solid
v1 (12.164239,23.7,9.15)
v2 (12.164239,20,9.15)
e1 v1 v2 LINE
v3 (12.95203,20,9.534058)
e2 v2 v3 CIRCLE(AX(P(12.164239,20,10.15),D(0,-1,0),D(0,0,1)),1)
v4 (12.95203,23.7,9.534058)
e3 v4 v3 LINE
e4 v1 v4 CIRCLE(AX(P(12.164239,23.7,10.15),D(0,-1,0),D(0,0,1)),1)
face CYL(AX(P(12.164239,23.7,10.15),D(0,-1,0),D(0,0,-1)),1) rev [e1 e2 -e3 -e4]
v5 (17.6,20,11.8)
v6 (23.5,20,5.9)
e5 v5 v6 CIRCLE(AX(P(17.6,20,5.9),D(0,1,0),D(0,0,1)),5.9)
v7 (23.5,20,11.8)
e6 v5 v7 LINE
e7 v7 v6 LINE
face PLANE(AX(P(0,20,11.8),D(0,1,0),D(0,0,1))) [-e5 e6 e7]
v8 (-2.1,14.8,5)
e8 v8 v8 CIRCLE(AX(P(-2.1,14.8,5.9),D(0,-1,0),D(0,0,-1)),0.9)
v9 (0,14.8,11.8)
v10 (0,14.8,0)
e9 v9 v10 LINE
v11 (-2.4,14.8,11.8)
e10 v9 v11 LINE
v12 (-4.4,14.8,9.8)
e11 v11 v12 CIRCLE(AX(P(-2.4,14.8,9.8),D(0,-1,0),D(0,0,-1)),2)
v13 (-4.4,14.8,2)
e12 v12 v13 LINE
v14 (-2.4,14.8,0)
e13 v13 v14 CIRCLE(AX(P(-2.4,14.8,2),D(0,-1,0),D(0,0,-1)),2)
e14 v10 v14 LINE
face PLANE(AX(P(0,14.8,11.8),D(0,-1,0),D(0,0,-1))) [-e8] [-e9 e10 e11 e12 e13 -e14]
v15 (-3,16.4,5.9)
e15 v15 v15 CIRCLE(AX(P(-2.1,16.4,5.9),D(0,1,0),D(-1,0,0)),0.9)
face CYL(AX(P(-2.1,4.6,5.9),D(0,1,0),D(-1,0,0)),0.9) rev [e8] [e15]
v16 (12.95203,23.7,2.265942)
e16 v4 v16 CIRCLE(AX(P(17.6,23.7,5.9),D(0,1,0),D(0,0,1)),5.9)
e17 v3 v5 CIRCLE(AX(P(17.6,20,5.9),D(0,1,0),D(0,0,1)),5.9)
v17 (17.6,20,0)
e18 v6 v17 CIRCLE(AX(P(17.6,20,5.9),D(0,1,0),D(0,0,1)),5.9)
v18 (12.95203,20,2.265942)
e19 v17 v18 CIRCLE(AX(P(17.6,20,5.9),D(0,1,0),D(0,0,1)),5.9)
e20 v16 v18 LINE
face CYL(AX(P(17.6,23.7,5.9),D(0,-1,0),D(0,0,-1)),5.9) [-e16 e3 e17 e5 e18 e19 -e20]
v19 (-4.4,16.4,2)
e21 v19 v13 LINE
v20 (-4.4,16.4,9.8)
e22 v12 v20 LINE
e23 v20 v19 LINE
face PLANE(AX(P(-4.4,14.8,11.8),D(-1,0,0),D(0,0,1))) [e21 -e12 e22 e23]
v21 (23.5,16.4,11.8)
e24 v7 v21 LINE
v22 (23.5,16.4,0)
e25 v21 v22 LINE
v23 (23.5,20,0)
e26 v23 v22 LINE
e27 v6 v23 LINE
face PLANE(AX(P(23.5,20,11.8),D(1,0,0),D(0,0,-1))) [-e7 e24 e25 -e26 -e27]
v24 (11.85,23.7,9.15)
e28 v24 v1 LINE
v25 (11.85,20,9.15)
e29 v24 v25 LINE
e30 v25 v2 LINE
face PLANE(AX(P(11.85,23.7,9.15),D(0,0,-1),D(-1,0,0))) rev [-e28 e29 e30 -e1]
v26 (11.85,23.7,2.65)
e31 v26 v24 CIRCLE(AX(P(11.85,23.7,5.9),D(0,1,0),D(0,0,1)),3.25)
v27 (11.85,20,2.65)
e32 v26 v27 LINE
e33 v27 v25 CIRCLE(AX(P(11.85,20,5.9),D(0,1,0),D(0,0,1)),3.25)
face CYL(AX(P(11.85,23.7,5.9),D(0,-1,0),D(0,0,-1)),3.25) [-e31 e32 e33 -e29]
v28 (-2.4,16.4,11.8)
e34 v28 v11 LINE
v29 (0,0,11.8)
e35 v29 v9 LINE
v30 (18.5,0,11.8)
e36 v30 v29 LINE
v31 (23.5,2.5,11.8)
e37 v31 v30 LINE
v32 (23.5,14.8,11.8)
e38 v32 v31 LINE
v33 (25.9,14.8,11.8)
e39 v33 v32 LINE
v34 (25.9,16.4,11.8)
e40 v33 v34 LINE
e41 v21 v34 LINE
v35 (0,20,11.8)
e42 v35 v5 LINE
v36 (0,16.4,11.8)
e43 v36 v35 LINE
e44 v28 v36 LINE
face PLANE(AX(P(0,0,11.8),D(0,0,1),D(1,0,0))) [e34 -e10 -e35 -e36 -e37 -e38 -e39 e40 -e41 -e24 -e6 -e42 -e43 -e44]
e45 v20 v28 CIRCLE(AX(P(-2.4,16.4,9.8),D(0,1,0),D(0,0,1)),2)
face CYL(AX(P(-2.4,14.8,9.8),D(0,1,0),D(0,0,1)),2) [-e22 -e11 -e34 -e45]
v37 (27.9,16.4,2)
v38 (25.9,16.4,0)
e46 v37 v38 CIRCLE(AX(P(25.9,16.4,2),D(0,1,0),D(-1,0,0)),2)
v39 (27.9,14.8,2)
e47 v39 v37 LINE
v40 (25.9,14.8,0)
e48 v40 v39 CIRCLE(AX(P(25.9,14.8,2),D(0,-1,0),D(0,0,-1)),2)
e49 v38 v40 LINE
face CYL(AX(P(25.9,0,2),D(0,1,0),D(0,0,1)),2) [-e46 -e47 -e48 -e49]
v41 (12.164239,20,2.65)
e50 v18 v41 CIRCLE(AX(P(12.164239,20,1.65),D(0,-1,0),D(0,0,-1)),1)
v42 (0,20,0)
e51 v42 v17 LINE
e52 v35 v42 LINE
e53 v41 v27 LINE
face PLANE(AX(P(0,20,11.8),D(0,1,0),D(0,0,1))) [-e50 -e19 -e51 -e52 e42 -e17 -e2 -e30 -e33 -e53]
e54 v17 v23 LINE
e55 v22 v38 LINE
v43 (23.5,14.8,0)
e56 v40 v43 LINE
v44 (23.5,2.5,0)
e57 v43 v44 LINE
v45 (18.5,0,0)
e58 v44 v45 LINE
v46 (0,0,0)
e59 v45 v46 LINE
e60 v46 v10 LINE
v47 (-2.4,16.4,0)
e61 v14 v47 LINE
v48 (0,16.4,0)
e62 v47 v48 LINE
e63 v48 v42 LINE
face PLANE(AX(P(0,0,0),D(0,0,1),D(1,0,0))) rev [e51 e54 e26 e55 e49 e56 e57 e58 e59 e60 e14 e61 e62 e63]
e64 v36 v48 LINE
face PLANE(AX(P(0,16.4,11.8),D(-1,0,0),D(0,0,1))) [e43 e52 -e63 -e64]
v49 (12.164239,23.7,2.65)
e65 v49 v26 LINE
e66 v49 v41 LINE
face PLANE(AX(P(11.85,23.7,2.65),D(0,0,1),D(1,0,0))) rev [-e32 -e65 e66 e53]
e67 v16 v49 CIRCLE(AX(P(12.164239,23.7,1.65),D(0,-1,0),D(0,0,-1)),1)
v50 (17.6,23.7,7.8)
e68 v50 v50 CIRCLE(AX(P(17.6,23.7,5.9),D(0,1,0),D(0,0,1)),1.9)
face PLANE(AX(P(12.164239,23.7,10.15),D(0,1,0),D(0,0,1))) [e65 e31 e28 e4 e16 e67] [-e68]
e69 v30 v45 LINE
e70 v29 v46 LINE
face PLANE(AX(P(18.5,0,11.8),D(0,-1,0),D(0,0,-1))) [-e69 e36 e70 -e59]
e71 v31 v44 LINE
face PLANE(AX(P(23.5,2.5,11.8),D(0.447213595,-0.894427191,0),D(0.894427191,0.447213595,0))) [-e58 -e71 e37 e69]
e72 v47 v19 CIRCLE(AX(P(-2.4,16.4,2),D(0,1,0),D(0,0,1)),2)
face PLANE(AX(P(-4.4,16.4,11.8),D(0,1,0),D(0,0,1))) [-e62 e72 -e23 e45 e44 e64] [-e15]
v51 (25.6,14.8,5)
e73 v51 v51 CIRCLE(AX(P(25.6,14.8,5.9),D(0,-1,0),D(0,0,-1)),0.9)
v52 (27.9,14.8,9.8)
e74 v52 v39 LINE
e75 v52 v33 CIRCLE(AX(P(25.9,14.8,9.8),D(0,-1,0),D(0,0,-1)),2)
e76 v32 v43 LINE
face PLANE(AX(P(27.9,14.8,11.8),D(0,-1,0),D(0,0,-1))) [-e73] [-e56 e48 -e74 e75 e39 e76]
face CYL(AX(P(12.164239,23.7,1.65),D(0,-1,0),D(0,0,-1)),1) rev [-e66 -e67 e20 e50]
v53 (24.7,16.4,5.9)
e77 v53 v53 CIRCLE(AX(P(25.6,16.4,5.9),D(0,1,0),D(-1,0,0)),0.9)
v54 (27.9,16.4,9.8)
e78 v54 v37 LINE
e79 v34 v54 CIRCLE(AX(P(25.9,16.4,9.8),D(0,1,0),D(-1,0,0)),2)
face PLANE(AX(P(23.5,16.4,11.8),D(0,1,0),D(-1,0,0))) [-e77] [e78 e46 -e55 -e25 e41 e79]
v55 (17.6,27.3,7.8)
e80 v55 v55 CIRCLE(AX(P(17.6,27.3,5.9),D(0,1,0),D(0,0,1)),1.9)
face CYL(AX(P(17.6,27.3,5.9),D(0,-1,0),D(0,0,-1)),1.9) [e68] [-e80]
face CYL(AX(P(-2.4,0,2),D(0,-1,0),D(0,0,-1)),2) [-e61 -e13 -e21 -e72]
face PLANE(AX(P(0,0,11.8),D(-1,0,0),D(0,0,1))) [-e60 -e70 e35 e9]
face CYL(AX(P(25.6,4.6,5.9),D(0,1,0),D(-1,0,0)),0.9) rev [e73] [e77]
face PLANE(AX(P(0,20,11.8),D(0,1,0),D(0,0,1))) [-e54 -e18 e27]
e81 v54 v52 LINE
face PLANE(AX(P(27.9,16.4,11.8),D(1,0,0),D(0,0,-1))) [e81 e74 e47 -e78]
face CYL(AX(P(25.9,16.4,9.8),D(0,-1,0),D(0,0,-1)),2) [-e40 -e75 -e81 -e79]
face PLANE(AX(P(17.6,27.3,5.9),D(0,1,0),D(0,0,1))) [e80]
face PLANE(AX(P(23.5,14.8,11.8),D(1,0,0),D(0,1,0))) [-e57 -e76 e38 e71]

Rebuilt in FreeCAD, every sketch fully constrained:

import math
import FreeCAD as App
import Part
import Sketcher
from FreeCAD import Vector
Q = App.Units.Quantity


def edges_at(feature, points):
    """Names of the edges that pass closest to the given points."""
    edges = feature.Shape.Edges
    near = lambda p: min(range(len(edges)), key=lambda i: edges[i].distToShape(Part.Vertex(*p))[0])
    return sorted({f"Edge{near(p) + 1}" for p in points})

doc = App.newDocument("Part")
body = doc.addObject("PartDesign::Body", "Body")

sketch1 = doc.addObject("Sketcher::SketchObject", "Sketch")
body.addObject(sketch1)
sketch1.AttachmentSupport = (doc.XY_Plane, [""])
sketch1.MapMode = "FlatFace"
sketch1.addGeometry(Part.LineSegment(Vector(0, 14.8, 0), Vector(0, 0, 0)), False)
sketch1.addGeometry(Part.LineSegment(Vector(0, 0, 0), Vector(18.5, 0, 0)), False)
sketch1.addGeometry(Part.LineSegment(Vector(18.5, 0, 0), Vector(23.5, 2.5, 0)), False)
sketch1.addGeometry(Part.LineSegment(Vector(23.5, 2.5, 0), Vector(23.5, 14.8, 0)), False)
sketch1.addGeometry(Part.LineSegment(Vector(23.5, 14.8, 0), Vector(27.9, 14.8, 0)), False)
sketch1.addGeometry(Part.LineSegment(Vector(27.9, 14.8, 0), Vector(27.9, 16.4, 0)), False)
sketch1.addGeometry(Part.LineSegment(Vector(27.9, 16.4, 0), Vector(23.5, 16.4, 0)), False)
sketch1.addGeometry(Part.LineSegment(Vector(23.5, 16.4, 0), Vector(23.5, 20, 0)), False)
sketch1.addGeometry(Part.LineSegment(Vector(23.5, 20, 0), Vector(0, 20, 0)), False)
sketch1.addGeometry(Part.LineSegment(Vector(0, 20, 0), Vector(0, 16.4, 0)), False)
sketch1.addGeometry(Part.LineSegment(Vector(0, 16.4, 0), Vector(-4.4, 16.4, 0)), False)
sketch1.addGeometry(Part.LineSegment(Vector(-4.4, 16.4, 0), Vector(-4.4, 14.8, 0)), False)
sketch1.addGeometry(Part.LineSegment(Vector(-4.4, 14.8, 0), Vector(0, 14.8, 0)), False)
sketch1.addConstraint(Sketcher.Constraint("Coincident", 0, 2, 1, 1))
sketch1.addConstraint(Sketcher.Constraint("Coincident", 1, 2, 2, 1))
sketch1.addConstraint(Sketcher.Constraint("Coincident", 2, 2, 3, 1))
sketch1.addConstraint(Sketcher.Constraint("Coincident", 3, 2, 4, 1))
sketch1.addConstraint(Sketcher.Constraint("Coincident", 4, 2, 5, 1))
sketch1.addConstraint(Sketcher.Constraint("Coincident", 5, 2, 6, 1))
sketch1.addConstraint(Sketcher.Constraint("Coincident", 6, 2, 7, 1))
sketch1.addConstraint(Sketcher.Constraint("Coincident", 7, 2, 8, 1))
sketch1.addConstraint(Sketcher.Constraint("Coincident", 8, 2, 9, 1))
sketch1.addConstraint(Sketcher.Constraint("Coincident", 9, 2, 10, 1))
sketch1.addConstraint(Sketcher.Constraint("Coincident", 10, 2, 11, 1))
sketch1.addConstraint(Sketcher.Constraint("Coincident", 11, 2, 12, 1))
sketch1.addConstraint(Sketcher.Constraint("Coincident", 12, 2, 0, 1))
sketch1.addConstraint(Sketcher.Constraint("Vertical", 0))
sketch1.addConstraint(Sketcher.Constraint("Horizontal", 1))
sketch1.addConstraint(Sketcher.Constraint("Vertical", 3))
sketch1.addConstraint(Sketcher.Constraint("Horizontal", 4))
sketch1.addConstraint(Sketcher.Constraint("Vertical", 5))
sketch1.addConstraint(Sketcher.Constraint("Horizontal", 6))
sketch1.addConstraint(Sketcher.Constraint("Vertical", 7))
sketch1.addConstraint(Sketcher.Constraint("Horizontal", 8))
sketch1.addConstraint(Sketcher.Constraint("Vertical", 9))
sketch1.addConstraint(Sketcher.Constraint("Horizontal", 10))
sketch1.addConstraint(Sketcher.Constraint("Vertical", 11))
sketch1.addConstraint(Sketcher.Constraint("Horizontal", 12))
sketch1.addConstraint(Sketcher.Constraint("Coincident", 0, 2, -1, 1))
sketch1.addConstraint(Sketcher.Constraint("PointOnObject", 8, 2, -2))
sketch1.addConstraint(Sketcher.Constraint("Horizontal", 6, 2, 9, 2))
sketch1.addConstraint(Sketcher.Constraint("Horizontal", 4, 2, 11, 2))
sketch1.addConstraint(Sketcher.Constraint("Vertical", 3, 2, 6, 2))
sketch1.addConstraint(Sketcher.Constraint("Equal", 6, 10))
sketch1.addConstraint(Sketcher.Constraint("DistanceX", 1, 1, 1, 2, Q("18.5 mm")))
sketch1.addConstraint(Sketcher.Constraint("DistanceX", 4, 1, 4, 2, Q("4.4 mm")))
sketch1.addConstraint(Sketcher.Constraint("DistanceX", 8, 2, 8, 1, Q("23.5 mm")))
sketch1.addConstraint(Sketcher.Constraint("DistanceY", 0, 2, 0, 1, Q("14.8 mm")))
sketch1.addConstraint(Sketcher.Constraint("DistanceY", 3, 1, 3, 2, Q("12.3 mm")))
sketch1.addConstraint(Sketcher.Constraint("DistanceY", 5, 1, 5, 2, Q("1.6 mm")))
sketch1.addConstraint(Sketcher.Constraint("DistanceY", 7, 1, 7, 2, Q("3.6 mm")))
pad1 = doc.addObject("PartDesign::Pad", "Pad")
body.addObject(pad1)
pad1.Profile = sketch1
pad1.Length = 11.8

sketch2 = doc.addObject("Sketcher::SketchObject", "Sketch001")
body.addObject(sketch2)
sketch2.AttachmentSupport = (doc.XZ_Plane, [""])
sketch2.MapMode = "FlatFace"
sketch2.AttachmentOffset = App.Placement(Vector(0, 0, -16.4), App.Rotation())
sketch2.addGeometry(Part.Circle(Vector(-2.1, 5.9, 0), Vector(0, 0, 1), 0.9), False)
sketch2.addGeometry(Part.Circle(Vector(25.6, 5.9, 0), Vector(0, 0, 1), 0.9), False)
sketch2.addConstraint(Sketcher.Constraint("Equal", 0, 1))
sketch2.addConstraint(Sketcher.Constraint("Horizontal", 0, 3, 1, 3))
sketch2.addConstraint(Sketcher.Constraint("Diameter", 0, Q("1.8 mm")))
sketch2.addConstraint(Sketcher.Constraint("DistanceX", 0, 3, -1, 1, Q("2.1 mm")))
sketch2.addConstraint(Sketcher.Constraint("DistanceY", -1, 1, 0, 3, Q("5.9 mm")))
sketch2.addConstraint(Sketcher.Constraint("DistanceX", -1, 1, 1, 3, Q("25.6 mm")))
pocket1 = doc.addObject("PartDesign::Pocket", "Pocket")
body.addObject(pocket1)
pocket1.Profile = sketch2
pocket1.Length = 11.8
pocket1.Reversed = True
doc.recompute()

fillet = doc.addObject("PartDesign::Fillet", "Fillet")
body.addObject(fillet)
fillet.Base = (pocket1, edges_at(pocket1, [
    (-4.4, 15.6, 0),
    (27.9, 15.6, 0),
    (27.9, 15.6, 11.8),
    (-4.4, 15.6, 11.8),
]))
fillet.Radius = 2

sketch3 = doc.addObject("Sketcher::SketchObject", "Sketch002")
body.addObject(sketch3)
sketch3.AttachmentSupport = (doc.XZ_Plane, [""])
sketch3.MapMode = "FlatFace"
sketch3.AttachmentOffset = App.Placement(Vector(0, 0, -20), App.Rotation())
sketch3.addGeometry(Part.LineSegment(Vector(12.16, 2.65, 0), Vector(11.85, 2.65, 0)), False)
sketch3.addGeometry(Part.ArcOfCircle(Part.Circle(Vector(11.85, 5.9, 0), Vector(0, 0, 1), 3.25), math.radians(90), math.radians(270)), False)
sketch3.addGeometry(Part.LineSegment(Vector(11.85, 9.15, 0), Vector(12.16, 9.15, 0)), False)
sketch3.addGeometry(Part.ArcOfCircle(Part.Circle(Vector(12.16, 10.15, 0), Vector(0, 0, 1), 1), math.radians(-90), math.radians(-38)), False)
sketch3.addGeometry(Part.ArcOfCircle(Part.Circle(Vector(17.6, 5.9, 0), Vector(0, 0, 1), 5.9), math.radians(-142), math.radians(142)), False)
sketch3.addGeometry(Part.ArcOfCircle(Part.Circle(Vector(12.16, 1.65, 0), Vector(0, 0, 1), 1), math.radians(38), math.radians(90)), False)
sketch3.addConstraint(Sketcher.Constraint("Tangent", 0, 2, 1, 2))
sketch3.addConstraint(Sketcher.Constraint("Tangent", 1, 1, 2, 1))
sketch3.addConstraint(Sketcher.Constraint("Tangent", 2, 2, 3, 1))
sketch3.addConstraint(Sketcher.Constraint("Tangent", 3, 2, 4, 2))
sketch3.addConstraint(Sketcher.Constraint("Tangent", 4, 1, 5, 1))
sketch3.addConstraint(Sketcher.Constraint("Tangent", 5, 2, 0, 1))
sketch3.addConstraint(Sketcher.Constraint("Horizontal", 0))
sketch3.addConstraint(Sketcher.Constraint("Horizontal", 2))
sketch3.addConstraint(Sketcher.Constraint("Equal", 3, 5))
sketch3.addConstraint(Sketcher.Constraint("Horizontal", 1, 3, 4, 3))
sketch3.addConstraint(Sketcher.Constraint("Radius", 3, Q("1 mm")))
sketch3.addConstraint(Sketcher.Constraint("Radius", 4, Q("5.9 mm")))
sketch3.addConstraint(Sketcher.Constraint("Radius", 1, Q("3.25 mm")))
sketch3.addConstraint(Sketcher.Constraint("DistanceY", -1, 1, 1, 3, Q("5.9 mm")))
sketch3.addConstraint(Sketcher.Constraint("DistanceX", -1, 1, 4, 3, Q("17.6 mm")))
sketch3.addConstraint(Sketcher.Constraint("DistanceX", -1, 1, 1, 3, Q("11.85 mm")))
pad2 = doc.addObject("PartDesign::Pad", "Pad001")
body.addObject(pad2)
pad2.Profile = sketch3
pad2.Length = 3.7
pad2.Reversed = True

sketch4 = doc.addObject("Sketcher::SketchObject", "Sketch003")
body.addObject(sketch4)
sketch4.AttachmentSupport = (doc.XZ_Plane, [""])
sketch4.MapMode = "FlatFace"
sketch4.AttachmentOffset = App.Placement(Vector(0, 0, -23.7), App.Rotation())
sketch4.addGeometry(Part.Circle(Vector(17.6, 5.9, 0), Vector(0, 0, 1), 1.9), False)
sketch4.addConstraint(Sketcher.Constraint("Diameter", 0, Q("3.8 mm")))
sketch4.addConstraint(Sketcher.Constraint("DistanceX", -1, 1, 0, 3, Q("17.6 mm")))
sketch4.addConstraint(Sketcher.Constraint("DistanceY", -1, 1, 0, 3, Q("5.9 mm")))
pad3 = doc.addObject("PartDesign::Pad", "Pad002")
body.addObject(pad3)
pad3.Profile = sketch4
pad3.Length = 3.6
pad3.Reversed = True

doc.recompute()
